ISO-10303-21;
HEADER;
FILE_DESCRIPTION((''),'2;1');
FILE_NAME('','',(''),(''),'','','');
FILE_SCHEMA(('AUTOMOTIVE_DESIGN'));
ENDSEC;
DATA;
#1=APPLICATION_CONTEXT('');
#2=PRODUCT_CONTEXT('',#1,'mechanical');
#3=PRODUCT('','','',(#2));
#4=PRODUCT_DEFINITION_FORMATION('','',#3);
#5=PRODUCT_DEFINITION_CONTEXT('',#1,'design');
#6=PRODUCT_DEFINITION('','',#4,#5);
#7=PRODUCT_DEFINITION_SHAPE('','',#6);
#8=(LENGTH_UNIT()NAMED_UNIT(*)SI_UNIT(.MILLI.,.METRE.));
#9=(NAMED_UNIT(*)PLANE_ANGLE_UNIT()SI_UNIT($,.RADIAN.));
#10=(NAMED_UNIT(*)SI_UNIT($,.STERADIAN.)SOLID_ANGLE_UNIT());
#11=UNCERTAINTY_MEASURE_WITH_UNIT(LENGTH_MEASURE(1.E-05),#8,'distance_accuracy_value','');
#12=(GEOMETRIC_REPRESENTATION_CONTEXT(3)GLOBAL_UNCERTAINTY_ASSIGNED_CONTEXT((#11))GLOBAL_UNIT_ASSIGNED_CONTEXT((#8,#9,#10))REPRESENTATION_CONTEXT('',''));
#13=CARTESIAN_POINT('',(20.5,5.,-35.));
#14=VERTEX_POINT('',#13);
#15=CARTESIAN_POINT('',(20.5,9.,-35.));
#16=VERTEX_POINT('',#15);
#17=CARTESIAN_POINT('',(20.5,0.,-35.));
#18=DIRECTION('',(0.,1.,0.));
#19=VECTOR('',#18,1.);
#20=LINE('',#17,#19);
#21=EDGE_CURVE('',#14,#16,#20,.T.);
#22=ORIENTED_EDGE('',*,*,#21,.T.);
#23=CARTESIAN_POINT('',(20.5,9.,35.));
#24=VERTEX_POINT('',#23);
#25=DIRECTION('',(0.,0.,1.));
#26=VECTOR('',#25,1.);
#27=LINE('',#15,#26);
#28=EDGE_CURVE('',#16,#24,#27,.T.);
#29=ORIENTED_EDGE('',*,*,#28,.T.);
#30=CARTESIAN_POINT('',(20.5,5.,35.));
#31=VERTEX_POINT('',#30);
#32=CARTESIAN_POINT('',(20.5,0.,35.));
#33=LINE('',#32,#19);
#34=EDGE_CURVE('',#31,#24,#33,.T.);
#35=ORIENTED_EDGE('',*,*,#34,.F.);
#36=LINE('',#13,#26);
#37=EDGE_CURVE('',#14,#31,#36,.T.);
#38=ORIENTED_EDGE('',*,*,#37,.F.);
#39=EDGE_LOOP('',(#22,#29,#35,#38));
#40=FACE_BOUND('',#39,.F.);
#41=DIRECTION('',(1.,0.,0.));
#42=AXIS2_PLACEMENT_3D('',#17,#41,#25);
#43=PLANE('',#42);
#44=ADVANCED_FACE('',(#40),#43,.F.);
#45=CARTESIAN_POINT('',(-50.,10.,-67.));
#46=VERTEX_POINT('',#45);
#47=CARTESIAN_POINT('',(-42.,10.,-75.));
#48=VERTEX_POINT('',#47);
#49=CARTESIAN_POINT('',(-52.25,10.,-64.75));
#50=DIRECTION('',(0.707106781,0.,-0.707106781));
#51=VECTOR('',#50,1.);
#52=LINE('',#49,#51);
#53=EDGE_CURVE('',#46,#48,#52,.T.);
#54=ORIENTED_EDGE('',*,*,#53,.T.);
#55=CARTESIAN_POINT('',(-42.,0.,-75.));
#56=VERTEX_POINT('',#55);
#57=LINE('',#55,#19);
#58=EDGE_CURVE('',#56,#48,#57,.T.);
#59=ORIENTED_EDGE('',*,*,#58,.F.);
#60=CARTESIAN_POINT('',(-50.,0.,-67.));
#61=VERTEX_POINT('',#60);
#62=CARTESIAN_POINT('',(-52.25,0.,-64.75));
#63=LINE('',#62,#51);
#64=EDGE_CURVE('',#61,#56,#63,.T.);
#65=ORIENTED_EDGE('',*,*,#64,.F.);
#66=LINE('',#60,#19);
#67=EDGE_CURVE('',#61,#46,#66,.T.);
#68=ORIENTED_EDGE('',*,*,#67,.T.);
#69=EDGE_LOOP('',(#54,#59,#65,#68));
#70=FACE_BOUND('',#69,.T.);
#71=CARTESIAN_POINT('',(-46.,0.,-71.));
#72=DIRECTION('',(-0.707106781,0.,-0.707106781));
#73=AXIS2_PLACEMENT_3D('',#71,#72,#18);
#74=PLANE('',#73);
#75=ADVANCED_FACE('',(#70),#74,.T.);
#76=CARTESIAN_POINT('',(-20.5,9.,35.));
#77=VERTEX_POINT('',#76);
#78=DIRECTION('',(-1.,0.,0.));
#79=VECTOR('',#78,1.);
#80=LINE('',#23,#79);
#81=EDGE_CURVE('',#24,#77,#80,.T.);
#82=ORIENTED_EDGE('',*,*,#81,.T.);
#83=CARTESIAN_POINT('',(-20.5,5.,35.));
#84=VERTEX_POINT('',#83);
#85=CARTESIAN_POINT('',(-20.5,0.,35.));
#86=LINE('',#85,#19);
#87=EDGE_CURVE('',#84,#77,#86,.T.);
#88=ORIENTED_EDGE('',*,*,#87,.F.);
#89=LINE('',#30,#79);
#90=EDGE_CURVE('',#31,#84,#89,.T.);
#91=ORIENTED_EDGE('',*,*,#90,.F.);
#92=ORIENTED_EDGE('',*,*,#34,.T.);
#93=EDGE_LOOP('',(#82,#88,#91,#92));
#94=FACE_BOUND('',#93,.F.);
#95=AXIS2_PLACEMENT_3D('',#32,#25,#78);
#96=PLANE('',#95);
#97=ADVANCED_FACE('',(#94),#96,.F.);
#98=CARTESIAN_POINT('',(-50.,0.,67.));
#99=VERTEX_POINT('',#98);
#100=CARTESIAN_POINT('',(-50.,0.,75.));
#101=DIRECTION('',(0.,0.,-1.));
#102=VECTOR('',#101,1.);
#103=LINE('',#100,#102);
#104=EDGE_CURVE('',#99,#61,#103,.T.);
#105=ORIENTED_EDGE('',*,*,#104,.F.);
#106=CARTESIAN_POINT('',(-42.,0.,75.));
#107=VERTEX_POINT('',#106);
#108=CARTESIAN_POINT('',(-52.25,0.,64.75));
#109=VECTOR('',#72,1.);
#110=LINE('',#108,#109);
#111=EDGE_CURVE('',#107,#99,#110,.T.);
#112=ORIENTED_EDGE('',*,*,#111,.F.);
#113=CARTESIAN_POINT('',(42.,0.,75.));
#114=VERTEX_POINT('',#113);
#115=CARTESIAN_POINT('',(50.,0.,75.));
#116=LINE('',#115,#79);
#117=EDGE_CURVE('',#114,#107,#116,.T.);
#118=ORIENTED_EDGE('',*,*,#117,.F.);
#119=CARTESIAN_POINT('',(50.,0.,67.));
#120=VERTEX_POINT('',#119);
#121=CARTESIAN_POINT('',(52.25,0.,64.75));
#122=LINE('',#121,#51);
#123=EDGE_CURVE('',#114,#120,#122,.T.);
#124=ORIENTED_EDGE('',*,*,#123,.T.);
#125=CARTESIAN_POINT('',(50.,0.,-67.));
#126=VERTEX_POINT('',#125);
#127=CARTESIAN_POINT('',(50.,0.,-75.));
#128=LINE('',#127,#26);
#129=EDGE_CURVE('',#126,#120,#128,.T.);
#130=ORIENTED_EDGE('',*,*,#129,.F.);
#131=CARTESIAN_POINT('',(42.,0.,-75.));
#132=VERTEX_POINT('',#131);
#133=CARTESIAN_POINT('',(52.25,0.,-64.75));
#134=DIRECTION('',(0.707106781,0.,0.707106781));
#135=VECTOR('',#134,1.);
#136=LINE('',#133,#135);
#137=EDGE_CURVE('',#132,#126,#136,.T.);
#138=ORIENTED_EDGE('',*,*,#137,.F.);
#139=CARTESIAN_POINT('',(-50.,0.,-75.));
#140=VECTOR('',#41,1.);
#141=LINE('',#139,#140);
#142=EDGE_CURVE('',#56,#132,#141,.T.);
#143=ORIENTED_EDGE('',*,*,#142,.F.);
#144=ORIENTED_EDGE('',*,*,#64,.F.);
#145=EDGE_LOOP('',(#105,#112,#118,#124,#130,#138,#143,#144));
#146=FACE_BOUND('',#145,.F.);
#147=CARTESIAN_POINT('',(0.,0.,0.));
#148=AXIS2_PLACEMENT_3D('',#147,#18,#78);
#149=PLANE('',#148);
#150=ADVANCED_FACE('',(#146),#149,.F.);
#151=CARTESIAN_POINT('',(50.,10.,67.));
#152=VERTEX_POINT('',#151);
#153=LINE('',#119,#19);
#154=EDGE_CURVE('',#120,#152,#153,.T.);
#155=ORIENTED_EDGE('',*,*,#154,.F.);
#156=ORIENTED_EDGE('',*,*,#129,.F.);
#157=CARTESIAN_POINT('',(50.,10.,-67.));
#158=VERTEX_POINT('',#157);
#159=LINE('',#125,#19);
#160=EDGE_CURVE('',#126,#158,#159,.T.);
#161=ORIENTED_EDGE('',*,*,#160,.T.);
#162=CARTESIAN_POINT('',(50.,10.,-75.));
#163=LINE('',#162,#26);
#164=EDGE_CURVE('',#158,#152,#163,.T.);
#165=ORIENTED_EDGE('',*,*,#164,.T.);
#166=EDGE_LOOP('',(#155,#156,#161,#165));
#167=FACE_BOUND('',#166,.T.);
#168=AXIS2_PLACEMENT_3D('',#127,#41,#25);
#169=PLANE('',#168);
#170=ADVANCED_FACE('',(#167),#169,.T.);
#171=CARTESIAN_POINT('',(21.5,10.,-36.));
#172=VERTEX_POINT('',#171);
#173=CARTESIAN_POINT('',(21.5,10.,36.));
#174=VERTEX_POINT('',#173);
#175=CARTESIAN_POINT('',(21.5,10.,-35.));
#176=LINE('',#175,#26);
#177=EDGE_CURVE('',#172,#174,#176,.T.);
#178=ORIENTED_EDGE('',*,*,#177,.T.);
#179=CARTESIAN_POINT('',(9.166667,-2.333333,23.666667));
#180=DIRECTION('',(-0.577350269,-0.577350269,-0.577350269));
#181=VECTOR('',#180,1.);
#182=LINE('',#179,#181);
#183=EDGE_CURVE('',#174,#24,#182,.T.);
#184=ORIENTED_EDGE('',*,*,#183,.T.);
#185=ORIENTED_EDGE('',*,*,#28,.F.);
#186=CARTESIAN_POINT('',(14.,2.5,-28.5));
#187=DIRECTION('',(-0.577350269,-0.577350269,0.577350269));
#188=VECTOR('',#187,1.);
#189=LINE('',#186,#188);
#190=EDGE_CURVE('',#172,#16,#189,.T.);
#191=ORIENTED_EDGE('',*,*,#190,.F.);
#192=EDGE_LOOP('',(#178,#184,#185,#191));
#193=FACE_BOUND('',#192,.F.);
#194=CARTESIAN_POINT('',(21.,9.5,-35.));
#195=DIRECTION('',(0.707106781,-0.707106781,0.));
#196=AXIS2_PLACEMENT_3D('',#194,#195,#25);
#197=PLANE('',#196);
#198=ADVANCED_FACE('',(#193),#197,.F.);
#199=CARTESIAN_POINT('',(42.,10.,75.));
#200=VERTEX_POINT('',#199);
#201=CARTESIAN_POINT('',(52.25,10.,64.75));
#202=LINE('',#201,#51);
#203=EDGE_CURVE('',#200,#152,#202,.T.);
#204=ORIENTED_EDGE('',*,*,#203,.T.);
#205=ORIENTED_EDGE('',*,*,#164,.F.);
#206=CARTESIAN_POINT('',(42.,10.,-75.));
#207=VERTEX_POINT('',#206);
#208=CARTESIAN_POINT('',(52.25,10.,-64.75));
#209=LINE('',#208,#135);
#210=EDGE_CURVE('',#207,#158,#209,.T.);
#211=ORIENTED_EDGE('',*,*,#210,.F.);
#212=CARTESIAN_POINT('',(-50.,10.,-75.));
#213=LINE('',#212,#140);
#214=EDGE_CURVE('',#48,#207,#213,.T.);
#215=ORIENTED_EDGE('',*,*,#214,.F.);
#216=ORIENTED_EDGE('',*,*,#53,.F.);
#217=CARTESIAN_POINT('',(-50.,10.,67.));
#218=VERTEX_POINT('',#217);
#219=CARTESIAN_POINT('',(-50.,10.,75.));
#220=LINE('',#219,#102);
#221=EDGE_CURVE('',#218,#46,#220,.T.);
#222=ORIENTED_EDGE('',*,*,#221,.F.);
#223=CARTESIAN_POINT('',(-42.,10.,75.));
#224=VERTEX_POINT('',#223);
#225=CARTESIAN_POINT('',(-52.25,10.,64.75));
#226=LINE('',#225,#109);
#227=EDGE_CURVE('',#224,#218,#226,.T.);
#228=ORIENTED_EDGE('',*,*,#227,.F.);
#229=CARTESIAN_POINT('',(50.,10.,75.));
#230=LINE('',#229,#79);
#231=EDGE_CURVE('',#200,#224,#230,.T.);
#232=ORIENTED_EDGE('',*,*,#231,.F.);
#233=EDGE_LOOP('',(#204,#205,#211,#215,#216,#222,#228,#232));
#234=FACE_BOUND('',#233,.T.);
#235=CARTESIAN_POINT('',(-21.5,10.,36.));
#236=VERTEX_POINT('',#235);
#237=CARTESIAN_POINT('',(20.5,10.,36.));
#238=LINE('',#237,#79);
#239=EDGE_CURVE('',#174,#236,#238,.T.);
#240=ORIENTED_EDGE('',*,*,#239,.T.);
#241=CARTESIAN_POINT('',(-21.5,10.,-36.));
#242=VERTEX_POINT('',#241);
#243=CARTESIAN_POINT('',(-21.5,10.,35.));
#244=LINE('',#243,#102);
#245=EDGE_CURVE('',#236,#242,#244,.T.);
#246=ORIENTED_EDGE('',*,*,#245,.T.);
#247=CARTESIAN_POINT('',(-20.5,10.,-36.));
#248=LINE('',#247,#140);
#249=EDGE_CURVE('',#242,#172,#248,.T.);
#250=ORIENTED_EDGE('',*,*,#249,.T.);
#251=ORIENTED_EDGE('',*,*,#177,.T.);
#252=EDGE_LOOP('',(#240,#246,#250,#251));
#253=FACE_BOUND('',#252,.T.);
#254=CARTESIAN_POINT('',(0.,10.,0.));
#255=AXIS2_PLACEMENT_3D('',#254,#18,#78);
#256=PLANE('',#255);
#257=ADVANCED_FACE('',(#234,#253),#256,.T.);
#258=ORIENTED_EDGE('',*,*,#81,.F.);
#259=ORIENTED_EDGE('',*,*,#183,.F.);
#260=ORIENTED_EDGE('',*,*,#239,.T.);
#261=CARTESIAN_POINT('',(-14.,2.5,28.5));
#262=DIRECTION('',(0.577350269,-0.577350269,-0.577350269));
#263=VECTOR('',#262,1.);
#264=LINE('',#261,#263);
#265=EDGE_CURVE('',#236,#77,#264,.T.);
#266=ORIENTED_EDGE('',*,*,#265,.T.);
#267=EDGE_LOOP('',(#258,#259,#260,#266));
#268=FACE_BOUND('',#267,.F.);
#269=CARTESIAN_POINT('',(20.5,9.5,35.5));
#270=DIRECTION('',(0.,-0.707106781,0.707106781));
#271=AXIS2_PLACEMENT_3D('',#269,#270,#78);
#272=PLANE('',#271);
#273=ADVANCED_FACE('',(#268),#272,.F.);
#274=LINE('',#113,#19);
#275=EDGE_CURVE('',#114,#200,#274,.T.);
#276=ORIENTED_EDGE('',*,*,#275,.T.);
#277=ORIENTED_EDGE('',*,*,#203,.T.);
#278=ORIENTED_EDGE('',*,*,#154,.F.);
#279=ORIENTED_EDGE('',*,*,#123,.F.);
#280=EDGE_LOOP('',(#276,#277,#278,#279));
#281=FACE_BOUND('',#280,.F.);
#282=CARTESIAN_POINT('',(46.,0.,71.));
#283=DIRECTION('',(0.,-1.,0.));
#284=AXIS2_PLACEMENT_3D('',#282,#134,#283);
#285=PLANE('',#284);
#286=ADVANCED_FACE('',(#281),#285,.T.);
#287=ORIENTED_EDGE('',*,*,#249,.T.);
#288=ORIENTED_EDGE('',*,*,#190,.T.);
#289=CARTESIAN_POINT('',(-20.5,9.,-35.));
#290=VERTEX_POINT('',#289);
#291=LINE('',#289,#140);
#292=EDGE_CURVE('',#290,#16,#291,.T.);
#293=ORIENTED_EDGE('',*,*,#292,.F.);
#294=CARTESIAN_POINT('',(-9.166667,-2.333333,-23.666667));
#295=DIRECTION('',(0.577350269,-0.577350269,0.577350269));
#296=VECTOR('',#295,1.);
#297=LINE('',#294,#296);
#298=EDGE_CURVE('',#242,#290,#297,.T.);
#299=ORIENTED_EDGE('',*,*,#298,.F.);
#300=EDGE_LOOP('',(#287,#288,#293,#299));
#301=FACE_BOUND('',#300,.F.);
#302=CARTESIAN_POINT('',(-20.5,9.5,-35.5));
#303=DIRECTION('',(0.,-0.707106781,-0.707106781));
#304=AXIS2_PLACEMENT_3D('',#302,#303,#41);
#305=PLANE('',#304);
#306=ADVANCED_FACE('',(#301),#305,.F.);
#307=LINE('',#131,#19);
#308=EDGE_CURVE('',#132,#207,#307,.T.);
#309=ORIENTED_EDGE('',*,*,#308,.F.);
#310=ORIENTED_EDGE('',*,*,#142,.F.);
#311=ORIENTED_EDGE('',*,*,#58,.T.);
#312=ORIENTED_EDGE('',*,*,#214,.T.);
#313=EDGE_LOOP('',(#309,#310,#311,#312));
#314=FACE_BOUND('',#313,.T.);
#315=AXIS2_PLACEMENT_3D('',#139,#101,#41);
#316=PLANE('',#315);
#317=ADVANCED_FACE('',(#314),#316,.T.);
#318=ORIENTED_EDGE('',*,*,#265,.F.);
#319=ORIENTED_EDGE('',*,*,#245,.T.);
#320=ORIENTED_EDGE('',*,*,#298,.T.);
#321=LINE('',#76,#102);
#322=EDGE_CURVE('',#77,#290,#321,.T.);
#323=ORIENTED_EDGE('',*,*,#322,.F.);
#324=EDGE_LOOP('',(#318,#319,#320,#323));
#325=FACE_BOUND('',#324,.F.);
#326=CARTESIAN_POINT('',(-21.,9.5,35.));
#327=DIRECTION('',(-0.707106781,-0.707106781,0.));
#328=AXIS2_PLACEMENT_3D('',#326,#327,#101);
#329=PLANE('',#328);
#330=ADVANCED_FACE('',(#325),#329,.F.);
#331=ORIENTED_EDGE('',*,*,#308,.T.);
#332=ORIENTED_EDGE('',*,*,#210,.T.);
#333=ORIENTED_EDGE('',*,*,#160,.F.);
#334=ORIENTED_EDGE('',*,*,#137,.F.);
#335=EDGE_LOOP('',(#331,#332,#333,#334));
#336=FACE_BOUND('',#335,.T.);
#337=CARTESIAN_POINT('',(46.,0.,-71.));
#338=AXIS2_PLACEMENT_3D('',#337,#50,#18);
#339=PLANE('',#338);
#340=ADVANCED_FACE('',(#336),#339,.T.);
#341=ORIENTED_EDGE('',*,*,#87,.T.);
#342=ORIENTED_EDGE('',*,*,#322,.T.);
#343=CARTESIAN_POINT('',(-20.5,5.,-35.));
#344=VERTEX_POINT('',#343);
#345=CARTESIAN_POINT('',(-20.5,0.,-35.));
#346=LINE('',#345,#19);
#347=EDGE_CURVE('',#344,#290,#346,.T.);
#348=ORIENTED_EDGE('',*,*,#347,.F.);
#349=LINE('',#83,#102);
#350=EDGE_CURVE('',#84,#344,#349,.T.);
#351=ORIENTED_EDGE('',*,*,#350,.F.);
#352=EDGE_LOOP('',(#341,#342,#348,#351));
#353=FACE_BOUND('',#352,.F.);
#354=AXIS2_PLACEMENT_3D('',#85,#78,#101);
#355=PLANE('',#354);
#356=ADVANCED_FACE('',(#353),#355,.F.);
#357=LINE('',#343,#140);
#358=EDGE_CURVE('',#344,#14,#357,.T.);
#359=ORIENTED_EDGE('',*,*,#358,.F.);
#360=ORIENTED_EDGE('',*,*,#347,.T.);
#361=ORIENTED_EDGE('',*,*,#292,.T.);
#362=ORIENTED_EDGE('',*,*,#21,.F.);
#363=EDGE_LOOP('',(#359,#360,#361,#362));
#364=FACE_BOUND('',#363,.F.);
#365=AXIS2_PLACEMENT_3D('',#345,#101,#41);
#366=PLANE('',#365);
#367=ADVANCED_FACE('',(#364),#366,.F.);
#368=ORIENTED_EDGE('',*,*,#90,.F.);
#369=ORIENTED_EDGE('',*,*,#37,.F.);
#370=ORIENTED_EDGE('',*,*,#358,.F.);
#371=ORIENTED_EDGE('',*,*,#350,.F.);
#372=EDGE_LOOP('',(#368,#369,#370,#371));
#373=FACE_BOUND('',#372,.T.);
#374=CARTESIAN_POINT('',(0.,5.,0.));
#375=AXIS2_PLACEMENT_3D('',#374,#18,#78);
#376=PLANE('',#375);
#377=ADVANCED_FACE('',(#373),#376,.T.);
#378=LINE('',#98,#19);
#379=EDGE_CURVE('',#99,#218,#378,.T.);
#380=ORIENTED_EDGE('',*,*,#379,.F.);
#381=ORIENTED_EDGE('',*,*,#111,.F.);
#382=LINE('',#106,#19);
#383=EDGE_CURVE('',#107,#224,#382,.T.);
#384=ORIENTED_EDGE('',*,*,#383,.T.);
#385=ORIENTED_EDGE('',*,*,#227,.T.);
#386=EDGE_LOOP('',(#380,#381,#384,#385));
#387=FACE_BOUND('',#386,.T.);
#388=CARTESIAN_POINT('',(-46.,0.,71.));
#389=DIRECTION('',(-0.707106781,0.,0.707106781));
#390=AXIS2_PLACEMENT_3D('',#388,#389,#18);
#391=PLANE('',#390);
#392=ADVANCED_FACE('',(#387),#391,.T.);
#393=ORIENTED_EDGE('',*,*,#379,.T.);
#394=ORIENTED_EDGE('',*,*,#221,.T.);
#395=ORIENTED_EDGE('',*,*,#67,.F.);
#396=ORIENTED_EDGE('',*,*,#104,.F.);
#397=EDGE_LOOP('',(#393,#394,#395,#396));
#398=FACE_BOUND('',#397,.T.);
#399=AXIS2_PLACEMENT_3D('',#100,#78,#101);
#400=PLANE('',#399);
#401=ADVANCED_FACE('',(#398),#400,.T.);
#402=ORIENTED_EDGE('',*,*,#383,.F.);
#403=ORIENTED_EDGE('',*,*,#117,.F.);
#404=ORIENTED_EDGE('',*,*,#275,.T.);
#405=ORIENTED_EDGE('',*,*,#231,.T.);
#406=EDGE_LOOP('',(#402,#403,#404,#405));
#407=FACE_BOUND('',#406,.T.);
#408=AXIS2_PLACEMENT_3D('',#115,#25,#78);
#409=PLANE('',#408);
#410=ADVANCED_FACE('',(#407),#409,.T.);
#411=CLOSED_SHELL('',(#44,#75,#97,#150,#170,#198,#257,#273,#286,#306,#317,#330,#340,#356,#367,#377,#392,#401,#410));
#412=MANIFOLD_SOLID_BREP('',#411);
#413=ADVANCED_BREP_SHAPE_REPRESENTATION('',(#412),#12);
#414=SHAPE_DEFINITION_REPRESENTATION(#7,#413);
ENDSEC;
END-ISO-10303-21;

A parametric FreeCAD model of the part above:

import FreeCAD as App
import Part
import Sketcher
from FreeCAD import Vector
Q = App.Units.Quantity


def edges_at(feature, points):
    """Names of the edges that pass closest to the given points."""
    edges = feature.Shape.Edges
    near = lambda p: min(range(len(edges)), key=lambda i: edges[i].distToShape(Part.Vertex(*p))[0])
    return sorted({f"Edge{near(p) + 1}" for p in points})


def add_polygon(sketch, points):
    """Adds a closed chain of lines whose ends are joined by coincident constraints."""
    first, n = sketch.GeometryCount, len(points)
    for a, b in zip(points, points[1:] + points[:1]):
        sketch.addGeometry(Part.LineSegment(App.Vector(*a, 0), App.Vector(*b, 0)), False)
    for i in range(n):
        sketch.addConstraint(Sketcher.Constraint("Coincident", first + i, 2, first + (i + 1) % n, 1))

doc = App.newDocument("Part")
body = doc.addObject("PartDesign::Body", "Body")

# Sketch on XZ plane
sketch1 = body.newObject("Sketcher::SketchObject", "Sketch")
sketch1.AttachmentSupport = (doc.getObject("XZ_Plane"), [""])
sketch1.MapMode = "FlatFace"
add_polygon(sketch1, [(-50, 75), (50, 75), (50, -75), (-50, -75)])  # lines 0-3
add_polygon(sketch1, [(20, -35), (20, 35), (-20, 35), (-20, -35)])  # lines 4-7
sketch1.addConstraint(Sketcher.Constraint("Horizontal", 0))
sketch1.addConstraint(Sketcher.Constraint("Vertical", 1))
sketch1.addConstraint(Sketcher.Constraint("Horizontal", 2))
sketch1.addConstraint(Sketcher.Constraint("Vertical", 3))
sketch1.addConstraint(Sketcher.Constraint("Vertical", 4))
sketch1.addConstraint(Sketcher.Constraint("Horizontal", 5))
sketch1.addConstraint(Sketcher.Constraint("Vertical", 6))
sketch1.addConstraint(Sketcher.Constraint("Horizontal", 7))
sketch1.addConstraint(Sketcher.Constraint("Symmetric", 0, 2, 2, 2, -1, 1))
sketch1.addConstraint(Sketcher.Constraint("Symmetric", 4, 2, 6, 2, -1, 1))
sketch1.addConstraint(Sketcher.Constraint("DistanceX", 0, 1, 0, 2, Q("100 mm")))
sketch1.addConstraint(Sketcher.Constraint("DistanceX", 5, 2, 5, 1, Q("41 mm")))
sketch1.addConstraint(Sketcher.Constraint("DistanceY", 1, 2, 1, 1, Q("150 mm")))
sketch1.addConstraint(Sketcher.Constraint("DistanceY", 4, 1, 4, 2, Q("70 mm")))
pad1 = body.newObject("PartDesign::Pad", "Pad")
pad1.Profile = sketch1
pad1.Length = 10
pad1.Reversed = True

# Sketch on XZ plane
sketch2 = body.newObject("Sketcher::SketchObject", "Sketch001")
sketch2.AttachmentSupport = (doc.getObject("XZ_Plane"), [""])
sketch2.MapMode = "FlatFace"
add_polygon(sketch2, [(-20, 35), (20, 35), (20, -35), (-20, -35)])  # lines 0-3
sketch2.addConstraint(Sketcher.Constraint("Horizontal", 0))
sketch2.addConstraint(Sketcher.Constraint("Vertical", 1))
sketch2.addConstraint(Sketcher.Constraint("Horizontal", 2))
sketch2.addConstraint(Sketcher.Constraint("Vertical", 3))
sketch2.addConstraint(Sketcher.Constraint("Symmetric", 0, 2, 2, 2, -1, 1))
sketch2.addConstraint(Sketcher.Constraint("DistanceX", 0, 1, 0, 2, Q("41 mm")))
sketch2.addConstraint(Sketcher.Constraint("DistanceY", 1, 2, 1, 1, Q("70 mm")))
pad2 = body.newObject("PartDesign::Pad", "Pad001")
pad2.Profile = sketch2
pad2.Length = 5
pad2.Reversed = True
doc.recompute()

chamfer = body.newObject("PartDesign::Chamfer", "Chamfer")
chamfer.Base = (pad2, edges_at(pad2, [
    (-20.5, 10, 0),
    (0, 10, 35),
    (0, 10, -35),
    (20.5, 10, 0),
]))
chamfer.Size = 1
doc.recompute()

chamfer2 = body.newObject("PartDesign::Chamfer", "Chamfer001")
chamfer2.Base = (chamfer, edges_at(chamfer, [
    (-50, 5, 75),
    (-50, 5, -75),
    (50, 5, -75),
    (50, 5, 75),
]))
chamfer2.Size = 8

doc.recompute()
